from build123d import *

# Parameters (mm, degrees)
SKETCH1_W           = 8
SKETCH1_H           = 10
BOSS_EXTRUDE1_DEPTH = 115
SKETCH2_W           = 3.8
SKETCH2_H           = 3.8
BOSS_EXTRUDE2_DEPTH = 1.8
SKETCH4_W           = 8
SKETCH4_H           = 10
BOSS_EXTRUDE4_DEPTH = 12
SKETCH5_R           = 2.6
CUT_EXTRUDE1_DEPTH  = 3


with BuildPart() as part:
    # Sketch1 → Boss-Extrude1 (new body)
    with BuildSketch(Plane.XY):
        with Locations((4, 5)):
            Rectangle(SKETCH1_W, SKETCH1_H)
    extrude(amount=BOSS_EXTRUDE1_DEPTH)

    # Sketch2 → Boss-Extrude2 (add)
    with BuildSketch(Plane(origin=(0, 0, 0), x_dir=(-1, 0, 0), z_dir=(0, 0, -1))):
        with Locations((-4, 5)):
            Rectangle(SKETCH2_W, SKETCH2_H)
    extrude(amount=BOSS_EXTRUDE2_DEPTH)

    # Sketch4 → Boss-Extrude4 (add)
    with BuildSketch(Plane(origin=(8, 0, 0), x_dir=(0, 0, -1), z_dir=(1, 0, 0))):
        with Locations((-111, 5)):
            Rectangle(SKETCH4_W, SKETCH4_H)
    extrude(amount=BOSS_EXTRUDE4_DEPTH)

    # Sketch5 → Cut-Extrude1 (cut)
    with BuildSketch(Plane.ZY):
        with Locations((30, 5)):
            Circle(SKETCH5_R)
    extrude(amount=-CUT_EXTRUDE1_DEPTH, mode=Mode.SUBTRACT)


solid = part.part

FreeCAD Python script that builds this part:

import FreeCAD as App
import Part
import Sketcher
from FreeCAD import Vector
Q = App.Units.Quantity

doc = App.newDocument("Part")
body = doc.addObject("PartDesign::Body", "Body")

sketch1 = body.newObject("Sketcher::SketchObject", "Sketch")
sketch1.AttachmentSupport = (doc.getObject("XY_Plane"), [""])
sketch1.MapMode = "FlatFace"
sketch1.addGeometry([
    Part.LineSegment(Vector(0, 10, 0), Vector(0, 0, 0)),
    Part.LineSegment(Vector(0, 0, 0), Vector(8, 0, 0)),
    Part.LineSegment(Vector(8, 0, 0), Vector(8, 10, 0)),
    Part.LineSegment(Vector(8, 10, 0), Vector(0, 10, 0)),
], False)
sketch1.addConstraint([
    Sketcher.Constraint("Coincident", 0, 2, 1, 1),
    Sketcher.Constraint("Coincident", 1, 2, 2, 1),
    Sketcher.Constraint("Coincident", 2, 2, 3, 1),
    Sketcher.Constraint("Coincident", 3, 2, 0, 1),
    Sketcher.Constraint("Vertical", 0),
    Sketcher.Constraint("Horizontal", 1),
    Sketcher.Constraint("Vertical", 2),
    Sketcher.Constraint("Horizontal", 3),
    Sketcher.Constraint("Coincident", 0, 2, -1, 1),
    Sketcher.Constraint("DistanceX", 1, 1, 1, 2, Q("8 mm")),
    Sketcher.Constraint("DistanceY", 0, 2, 0, 1, Q("10 mm")),
])
pad1 = body.newObject("PartDesign::Pad", "Pad")
pad1.Profile = sketch1
pad1.Length = 115

sketch2 = body.newObject("Sketcher::SketchObject", "Sketch001")
sketch2.AttachmentSupport = (doc.getObject("XY_Plane"), [""])
sketch2.MapMode = "FlatFace"
sketch2.addGeometry([
    Part.LineSegment(Vector(5.9, 6.9, 0), Vector(5.9, 3.1, 0)),
    Part.LineSegment(Vector(5.9, 3.1, 0), Vector(2.1, 3.1, 0)),
    Part.LineSegment(Vector(2.1, 3.1, 0), Vector(2.1, 6.9, 0)),
    Part.LineSegment(Vector(2.1, 6.9, 0), Vector(5.9, 6.9, 0)),
], False)
sketch2.addConstraint([
    Sketcher.Constraint("Coincident", 0, 2, 1, 1),
    Sketcher.Constraint("Coincident", 1, 2, 2, 1),
    Sketcher.Constraint("Coincident", 2, 2, 3, 1),
    Sketcher.Constraint("Coincident", 3, 2, 0, 1),
    Sketcher.Constraint("Vertical", 0),
    Sketcher.Constraint("Horizontal", 1),
    Sketcher.Constraint("Vertical", 2),
    Sketcher.Constraint("Horizontal", 3),
    Sketcher.Constraint("Equal", 3, 0),
    Sketcher.Constraint("DistanceX", 1, 2, 1, 1, Q("3.8 mm")),
    Sketcher.Constraint("DistanceX", -1, 1, 0, 2, Q("5.9 mm")),
    Sketcher.Constraint("DistanceY", -1, 1, 0, 2, Q("3.1 mm")),
])
pad2 = body.newObject("PartDesign::Pad", "Pad001")
pad2.Profile = sketch2
pad2.Length = 1.8
pad2.Reversed = True

sketch3 = body.newObject("Sketcher::SketchObject", "Sketch002")
sketch3.AttachmentSupport = (doc.getObject("YZ_Plane"), [""])
sketch3.MapMode = "FlatFace"
sketch3.AttachmentOffset = App.Placement(Vector(0, 0, 8), App.Rotation())
sketch3.addGeometry([
    Part.LineSegment(Vector(10, 115, 0), Vector(0, 115, 0)),
    Part.LineSegment(Vector(0, 115, 0), Vector(0, 107, 0)),
    Part.LineSegment(Vector(0, 107, 0), Vector(10, 107, 0)),
    Part.LineSegment(Vector(10, 107, 0), Vector(10, 115, 0)),
], False)
sketch3.addConstraint([
    Sketcher.Constraint("Coincident", 0, 2, 1, 1),
    Sketcher.Constraint("Coincident", 1, 2, 2, 1),
    Sketcher.Constraint("Coincident", 2, 2, 3, 1),
    Sketcher.Constraint("Coincident", 3, 2, 0, 1),
    Sketcher.Constraint("Horizontal", 0),
    Sketcher.Constraint("Vertical", 1),
    Sketcher.Constraint("Horizontal", 2),
    Sketcher.Constraint("Vertical", 3),
    Sketcher.Constraint("PointOnObject", 0, 2, -2),
    Sketcher.Constraint("DistanceX", 0, 2, 0, 1, Q("10 mm")),
    Sketcher.Constraint("DistanceY", 1, 2, 1, 1, Q("8 mm")),
    Sketcher.Constraint("DistanceY", -1, 1, 0, 2, Q("115 mm")),
])
pad3 = body.newObject("PartDesign::Pad", "Pad002")
pad3.Profile = sketch3
pad3.Length = 12

sketch4 = body.newObject("Sketcher::SketchObject", "Sketch003")
sketch4.AttachmentSupport = (doc.getObject("YZ_Plane"), [""])
sketch4.MapMode = "FlatFace"
sketch4.addGeometry(Part.Circle(Vector(5, 30, 0), Vector(0, 0, 1), 2.6), False)
sketch4.addConstraint([
    Sketcher.Constraint("Diameter", 0, Q("5.2 mm")),
    Sketcher.Constraint("DistanceX", -1, 1, 0, 3, Q("5 mm")),
    Sketcher.Constraint("DistanceY", -1, 1, 0, 3, Q("30 mm")),
])
pocket1 = body.newObject("PartDesign::Pocket", "Pocket")
pocket1.Profile = sketch4
pocket1.Length = 3
pocket1.Reversed = True

doc.recompute()
